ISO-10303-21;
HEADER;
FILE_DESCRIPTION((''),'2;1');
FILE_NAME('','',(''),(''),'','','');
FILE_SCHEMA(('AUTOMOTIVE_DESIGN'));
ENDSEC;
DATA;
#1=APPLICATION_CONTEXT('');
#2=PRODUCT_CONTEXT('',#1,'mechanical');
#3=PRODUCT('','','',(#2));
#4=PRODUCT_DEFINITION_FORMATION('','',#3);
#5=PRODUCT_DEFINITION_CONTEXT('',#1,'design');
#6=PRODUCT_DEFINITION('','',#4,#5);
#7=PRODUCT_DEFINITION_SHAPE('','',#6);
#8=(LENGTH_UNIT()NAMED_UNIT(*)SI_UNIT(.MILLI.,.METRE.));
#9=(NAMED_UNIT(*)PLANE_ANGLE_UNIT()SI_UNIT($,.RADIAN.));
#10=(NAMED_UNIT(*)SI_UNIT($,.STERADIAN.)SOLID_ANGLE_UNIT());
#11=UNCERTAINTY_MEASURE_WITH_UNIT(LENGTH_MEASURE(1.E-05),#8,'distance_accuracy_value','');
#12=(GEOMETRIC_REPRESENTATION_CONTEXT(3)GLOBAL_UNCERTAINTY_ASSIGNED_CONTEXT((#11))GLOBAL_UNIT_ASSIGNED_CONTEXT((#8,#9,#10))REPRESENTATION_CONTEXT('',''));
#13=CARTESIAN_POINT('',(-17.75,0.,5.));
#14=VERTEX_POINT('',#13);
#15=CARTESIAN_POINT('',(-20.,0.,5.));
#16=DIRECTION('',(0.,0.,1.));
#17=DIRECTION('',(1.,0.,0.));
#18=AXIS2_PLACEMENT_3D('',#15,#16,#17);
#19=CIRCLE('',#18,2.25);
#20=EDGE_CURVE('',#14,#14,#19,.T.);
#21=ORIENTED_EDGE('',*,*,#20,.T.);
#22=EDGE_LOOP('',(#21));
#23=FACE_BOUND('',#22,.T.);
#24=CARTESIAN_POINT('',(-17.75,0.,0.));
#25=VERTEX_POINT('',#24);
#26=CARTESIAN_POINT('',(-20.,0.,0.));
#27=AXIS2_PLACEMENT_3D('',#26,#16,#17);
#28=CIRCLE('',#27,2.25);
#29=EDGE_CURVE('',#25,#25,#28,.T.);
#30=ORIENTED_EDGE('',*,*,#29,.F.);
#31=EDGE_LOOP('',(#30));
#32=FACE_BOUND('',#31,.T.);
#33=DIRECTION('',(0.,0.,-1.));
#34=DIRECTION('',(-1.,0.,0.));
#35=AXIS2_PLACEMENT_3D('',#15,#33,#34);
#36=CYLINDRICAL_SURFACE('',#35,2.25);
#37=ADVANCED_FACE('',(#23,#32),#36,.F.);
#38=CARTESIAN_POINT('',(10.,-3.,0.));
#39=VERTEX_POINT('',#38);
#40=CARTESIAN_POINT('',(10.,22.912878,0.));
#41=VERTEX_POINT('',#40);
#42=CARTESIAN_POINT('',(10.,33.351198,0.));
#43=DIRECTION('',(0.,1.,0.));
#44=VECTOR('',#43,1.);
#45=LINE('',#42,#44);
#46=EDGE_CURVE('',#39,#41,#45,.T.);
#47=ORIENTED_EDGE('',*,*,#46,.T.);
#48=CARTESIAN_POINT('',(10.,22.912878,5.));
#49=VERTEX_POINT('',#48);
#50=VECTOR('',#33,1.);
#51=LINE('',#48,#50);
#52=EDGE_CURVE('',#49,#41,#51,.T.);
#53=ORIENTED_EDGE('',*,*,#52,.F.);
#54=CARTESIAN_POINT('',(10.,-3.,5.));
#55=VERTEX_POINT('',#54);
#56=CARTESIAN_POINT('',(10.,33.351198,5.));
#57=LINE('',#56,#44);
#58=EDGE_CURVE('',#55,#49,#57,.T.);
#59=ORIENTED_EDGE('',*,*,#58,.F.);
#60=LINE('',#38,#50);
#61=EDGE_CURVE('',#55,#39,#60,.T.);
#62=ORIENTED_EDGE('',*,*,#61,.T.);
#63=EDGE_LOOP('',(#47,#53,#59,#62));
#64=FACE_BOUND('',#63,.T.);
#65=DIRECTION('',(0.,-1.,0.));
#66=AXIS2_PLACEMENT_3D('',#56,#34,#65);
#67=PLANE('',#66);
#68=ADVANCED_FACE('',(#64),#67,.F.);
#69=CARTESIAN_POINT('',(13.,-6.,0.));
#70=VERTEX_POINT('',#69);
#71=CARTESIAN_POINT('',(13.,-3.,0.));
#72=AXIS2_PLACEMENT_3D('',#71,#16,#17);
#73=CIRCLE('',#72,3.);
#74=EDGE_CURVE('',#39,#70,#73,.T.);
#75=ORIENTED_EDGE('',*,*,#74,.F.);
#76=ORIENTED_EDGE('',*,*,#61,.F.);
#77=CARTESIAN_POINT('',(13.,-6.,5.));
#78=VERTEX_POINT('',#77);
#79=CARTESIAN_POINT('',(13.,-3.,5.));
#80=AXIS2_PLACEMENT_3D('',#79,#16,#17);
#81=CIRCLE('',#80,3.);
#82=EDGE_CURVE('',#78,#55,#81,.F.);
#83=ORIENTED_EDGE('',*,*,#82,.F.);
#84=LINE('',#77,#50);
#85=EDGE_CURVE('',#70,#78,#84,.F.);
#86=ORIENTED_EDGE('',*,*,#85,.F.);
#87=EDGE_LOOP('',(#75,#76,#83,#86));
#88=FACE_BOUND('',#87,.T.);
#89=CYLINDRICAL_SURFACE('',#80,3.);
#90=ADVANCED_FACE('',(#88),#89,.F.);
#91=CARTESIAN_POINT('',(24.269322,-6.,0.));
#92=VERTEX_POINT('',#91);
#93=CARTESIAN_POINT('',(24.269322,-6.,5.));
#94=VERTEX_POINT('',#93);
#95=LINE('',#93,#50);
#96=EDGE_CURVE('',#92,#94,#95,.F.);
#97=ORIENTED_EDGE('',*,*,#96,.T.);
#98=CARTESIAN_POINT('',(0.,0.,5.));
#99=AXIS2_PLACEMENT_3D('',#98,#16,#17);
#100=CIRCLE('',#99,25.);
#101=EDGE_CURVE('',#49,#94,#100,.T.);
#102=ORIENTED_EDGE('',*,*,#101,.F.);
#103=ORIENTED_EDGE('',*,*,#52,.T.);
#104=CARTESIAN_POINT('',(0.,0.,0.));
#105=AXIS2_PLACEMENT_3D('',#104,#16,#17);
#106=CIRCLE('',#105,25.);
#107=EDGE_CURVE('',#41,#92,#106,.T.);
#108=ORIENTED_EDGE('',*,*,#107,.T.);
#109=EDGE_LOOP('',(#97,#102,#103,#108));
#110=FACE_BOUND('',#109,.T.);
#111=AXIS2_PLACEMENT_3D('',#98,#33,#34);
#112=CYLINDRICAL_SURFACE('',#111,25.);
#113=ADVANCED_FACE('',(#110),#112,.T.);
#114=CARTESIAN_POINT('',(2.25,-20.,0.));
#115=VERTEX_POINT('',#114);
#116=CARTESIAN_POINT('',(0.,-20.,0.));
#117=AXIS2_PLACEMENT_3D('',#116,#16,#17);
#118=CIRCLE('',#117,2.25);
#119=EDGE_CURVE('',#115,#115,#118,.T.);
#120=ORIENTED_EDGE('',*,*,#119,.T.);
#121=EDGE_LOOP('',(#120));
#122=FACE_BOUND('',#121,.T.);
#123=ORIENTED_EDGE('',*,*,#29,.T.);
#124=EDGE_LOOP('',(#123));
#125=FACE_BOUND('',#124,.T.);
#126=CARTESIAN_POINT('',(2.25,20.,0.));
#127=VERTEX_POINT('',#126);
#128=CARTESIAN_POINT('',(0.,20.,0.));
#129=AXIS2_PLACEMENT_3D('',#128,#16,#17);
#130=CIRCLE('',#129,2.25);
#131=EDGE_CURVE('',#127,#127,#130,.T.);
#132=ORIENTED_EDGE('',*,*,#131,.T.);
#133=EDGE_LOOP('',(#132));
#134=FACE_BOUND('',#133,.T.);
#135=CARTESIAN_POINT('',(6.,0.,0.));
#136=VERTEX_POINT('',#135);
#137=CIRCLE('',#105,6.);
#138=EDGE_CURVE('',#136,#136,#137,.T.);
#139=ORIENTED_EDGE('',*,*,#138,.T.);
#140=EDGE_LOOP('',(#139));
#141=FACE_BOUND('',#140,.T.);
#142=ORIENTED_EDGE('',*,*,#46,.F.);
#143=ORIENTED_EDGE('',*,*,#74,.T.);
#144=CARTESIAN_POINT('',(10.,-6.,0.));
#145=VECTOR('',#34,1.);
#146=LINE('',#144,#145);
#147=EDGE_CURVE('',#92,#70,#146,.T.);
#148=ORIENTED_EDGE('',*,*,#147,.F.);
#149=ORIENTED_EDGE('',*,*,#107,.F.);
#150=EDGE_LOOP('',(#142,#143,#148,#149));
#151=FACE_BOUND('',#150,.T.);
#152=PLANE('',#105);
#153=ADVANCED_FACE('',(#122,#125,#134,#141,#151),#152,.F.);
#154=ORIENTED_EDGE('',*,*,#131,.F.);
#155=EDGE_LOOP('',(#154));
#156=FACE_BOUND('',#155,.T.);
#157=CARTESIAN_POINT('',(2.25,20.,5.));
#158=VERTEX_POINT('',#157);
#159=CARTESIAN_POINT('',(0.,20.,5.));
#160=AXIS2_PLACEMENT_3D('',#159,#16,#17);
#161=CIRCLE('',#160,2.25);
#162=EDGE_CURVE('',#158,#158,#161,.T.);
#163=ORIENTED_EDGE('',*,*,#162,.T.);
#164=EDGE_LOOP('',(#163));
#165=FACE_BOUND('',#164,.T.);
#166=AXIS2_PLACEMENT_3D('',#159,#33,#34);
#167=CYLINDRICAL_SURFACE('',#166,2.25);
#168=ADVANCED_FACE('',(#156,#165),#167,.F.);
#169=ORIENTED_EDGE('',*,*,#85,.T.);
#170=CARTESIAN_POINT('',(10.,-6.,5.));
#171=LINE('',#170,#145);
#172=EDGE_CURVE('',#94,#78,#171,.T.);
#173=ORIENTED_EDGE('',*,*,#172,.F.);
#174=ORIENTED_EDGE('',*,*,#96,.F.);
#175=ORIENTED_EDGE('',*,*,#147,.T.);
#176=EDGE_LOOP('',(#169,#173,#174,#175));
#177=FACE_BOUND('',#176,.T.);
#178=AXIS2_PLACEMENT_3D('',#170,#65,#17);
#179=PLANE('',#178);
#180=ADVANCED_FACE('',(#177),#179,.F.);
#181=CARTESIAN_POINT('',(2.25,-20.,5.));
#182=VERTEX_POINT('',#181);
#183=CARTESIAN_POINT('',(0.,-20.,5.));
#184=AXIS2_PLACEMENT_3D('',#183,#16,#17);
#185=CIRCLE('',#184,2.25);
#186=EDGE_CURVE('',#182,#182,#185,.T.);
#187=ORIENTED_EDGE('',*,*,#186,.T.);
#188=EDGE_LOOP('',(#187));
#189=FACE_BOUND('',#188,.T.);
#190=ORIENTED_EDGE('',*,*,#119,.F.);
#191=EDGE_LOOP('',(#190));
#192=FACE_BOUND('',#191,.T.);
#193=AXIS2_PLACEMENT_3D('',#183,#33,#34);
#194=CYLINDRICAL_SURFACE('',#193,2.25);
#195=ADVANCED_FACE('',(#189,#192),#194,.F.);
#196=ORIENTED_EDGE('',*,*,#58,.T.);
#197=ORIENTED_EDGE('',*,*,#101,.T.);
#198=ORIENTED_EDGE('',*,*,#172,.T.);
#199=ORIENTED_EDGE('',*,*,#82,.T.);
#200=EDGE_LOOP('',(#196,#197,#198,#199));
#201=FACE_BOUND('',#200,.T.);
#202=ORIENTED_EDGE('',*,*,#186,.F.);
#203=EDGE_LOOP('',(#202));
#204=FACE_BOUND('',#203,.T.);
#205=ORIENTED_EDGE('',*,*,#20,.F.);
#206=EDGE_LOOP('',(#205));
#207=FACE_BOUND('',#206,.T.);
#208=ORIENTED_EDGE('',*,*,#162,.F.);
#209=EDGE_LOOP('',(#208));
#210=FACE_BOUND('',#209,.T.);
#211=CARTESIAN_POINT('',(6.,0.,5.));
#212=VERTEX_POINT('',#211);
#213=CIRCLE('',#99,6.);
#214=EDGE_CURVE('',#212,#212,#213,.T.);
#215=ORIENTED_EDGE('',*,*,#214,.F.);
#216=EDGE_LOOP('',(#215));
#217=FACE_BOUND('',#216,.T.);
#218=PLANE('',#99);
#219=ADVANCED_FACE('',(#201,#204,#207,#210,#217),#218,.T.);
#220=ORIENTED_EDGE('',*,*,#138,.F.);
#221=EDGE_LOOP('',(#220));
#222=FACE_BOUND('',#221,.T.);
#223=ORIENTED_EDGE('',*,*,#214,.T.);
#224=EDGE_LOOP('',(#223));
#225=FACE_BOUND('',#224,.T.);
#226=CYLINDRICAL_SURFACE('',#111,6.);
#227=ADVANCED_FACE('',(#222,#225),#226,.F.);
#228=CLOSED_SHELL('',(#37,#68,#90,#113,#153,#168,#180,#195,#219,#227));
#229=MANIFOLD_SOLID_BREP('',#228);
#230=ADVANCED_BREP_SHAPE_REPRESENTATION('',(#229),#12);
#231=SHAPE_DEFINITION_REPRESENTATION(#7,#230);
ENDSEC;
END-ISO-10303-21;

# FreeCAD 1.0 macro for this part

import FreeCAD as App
import Part
import Sketcher


def edges_at(feature, points):
    """Names of the edges that pass closest to the given points."""
    edges = feature.Shape.Edges
    near = lambda p: min(range(len(edges)), key=lambda i: edges[i].distToShape(Part.Vertex(*p))[0])
    return sorted({f"Edge{near(p) + 1}" for p in points})

doc = App.newDocument("Part")
body = doc.addObject("PartDesign::Body", "Body")

# Sketch on XY plane
sketch1 = body.newObject("Sketcher::SketchObject", "Sketch")
sketch1.AttachmentSupport = (doc.getObject("XY_Plane"), [""])
sketch1.MapMode = "FlatFace"
sketch1.addGeometry(Part.Circle(App.Vector(0, 0, 0), App.Vector(0, 0, 1), 25), False)
sketch1.addGeometry(Part.Circle(App.Vector(0, -20, 0), App.Vector(0, 0, 1), 2.2), False)
sketch1.addGeometry(Part.Circle(App.Vector(-20, 0, 0), App.Vector(0, 0, 1), 2.2), False)
sketch1.addGeometry(Part.Circle(App.Vector(0, 0, 0), App.Vector(0, 0, 1), 6), False)
sketch1.addGeometry(Part.Circle(App.Vector(0, 20, 0), App.Vector(0, 0, 1), 2.2), False)
sketch1.addConstraint(Sketcher.Constraint("Coincident", 0, 3, -1, 1))
sketch1.addConstraint(Sketcher.Constraint("Coincident", 3, 3, -1, 1))
sketch1.addConstraint(Sketcher.Constraint("Equal", 1, 2))
sketch1.addConstraint(Sketcher.Constraint("Equal", 2, 4))
sketch1.addConstraint(Sketcher.Constraint("Symmetric", 1, 3, 4, 3, -1, 1))
sketch1.addConstraint(Sketcher.Constraint("PointOnObject", 1, 3, -2))
sketch1.addConstraint(Sketcher.Constraint("PointOnObject", 2, 3, -1))
sketch1.addConstraint(Sketcher.Constraint("Diameter", 0, 50.0))
sketch1.addConstraint(Sketcher.Constraint("Diameter", 3, 12.0))
sketch1.addConstraint(Sketcher.Constraint("Diameter", 1, 4.5))
sketch1.addConstraint(Sketcher.Constraint("DistanceY", 1, 3, -1, 1, 20.0))
sketch1.addConstraint(Sketcher.Constraint("DistanceX", 2, 3, -1, 1, 20.0))
pad1 = body.newObject("PartDesign::Pad", "Pad")
pad1.Profile = sketch1
pad1.Length = 5

# Sketch on XY plane
sketch2 = body.newObject("Sketcher::SketchObject", "Sketch001")
sketch2.AttachmentSupport = (doc.getObject("XY_Plane"), [""])
sketch2.MapMode = "FlatFace"
sketch2.addGeometry(Part.LineSegment(App.Vector(34, 33, 0), App.Vector(34, -6, 0)), False)
sketch2.addGeometry(Part.LineSegment(App.Vector(34, -6, 0), App.Vector(10, -6, 0)), False)
sketch2.addGeometry(Part.LineSegment(App.Vector(10, -6, 0), App.Vector(10, 33, 0)), False)
sketch2.addGeometry(Part.LineSegment(App.Vector(10, 33, 0), App.Vector(34, 33, 0)), False)
sketch2.addConstraint(Sketcher.Constraint("Coincident", 0, 2, 1, 1))
sketch2.addConstraint(Sketcher.Constraint("Coincident", 1, 2, 2, 1))
sketch2.addConstraint(Sketcher.Constraint("Coincident", 2, 2, 3, 1))
sketch2.addConstraint(Sketcher.Constraint("Coincident", 3, 2, 0, 1))
sketch2.addConstraint(Sketcher.Constraint("Vertical", 0))
sketch2.addConstraint(Sketcher.Constraint("Horizontal", 1))
sketch2.addConstraint(Sketcher.Constraint("Vertical", 2))
sketch2.addConstraint(Sketcher.Constraint("Horizontal", 3))
sketch2.addConstraint(Sketcher.Constraint("DistanceY", 0, 2, -1, 1, 6.0))
sketch2.addConstraint(Sketcher.Constraint("DistanceX", -1, 1, 1, 2, 10.0))
sketch2.addConstraint(Sketcher.Constraint("DistanceX", 1, 2, 1, 1, 24.326967))
sketch2.addConstraint(Sketcher.Constraint("DistanceY", 0, 2, 0, 1, 39.351198))
pocket1 = body.newObject("PartDesign::Pocket", "Pocket")
pocket1.Profile = sketch2
pocket1.Length = 5
pocket1.Reversed = True
doc.recompute()

fillet = body.newObject("PartDesign::Fillet", "Fillet")
fillet.Base = (pocket1, edges_at(pocket1, [(10, -6, 2.5)]))
fillet.Radius = 3

doc.recompute()
